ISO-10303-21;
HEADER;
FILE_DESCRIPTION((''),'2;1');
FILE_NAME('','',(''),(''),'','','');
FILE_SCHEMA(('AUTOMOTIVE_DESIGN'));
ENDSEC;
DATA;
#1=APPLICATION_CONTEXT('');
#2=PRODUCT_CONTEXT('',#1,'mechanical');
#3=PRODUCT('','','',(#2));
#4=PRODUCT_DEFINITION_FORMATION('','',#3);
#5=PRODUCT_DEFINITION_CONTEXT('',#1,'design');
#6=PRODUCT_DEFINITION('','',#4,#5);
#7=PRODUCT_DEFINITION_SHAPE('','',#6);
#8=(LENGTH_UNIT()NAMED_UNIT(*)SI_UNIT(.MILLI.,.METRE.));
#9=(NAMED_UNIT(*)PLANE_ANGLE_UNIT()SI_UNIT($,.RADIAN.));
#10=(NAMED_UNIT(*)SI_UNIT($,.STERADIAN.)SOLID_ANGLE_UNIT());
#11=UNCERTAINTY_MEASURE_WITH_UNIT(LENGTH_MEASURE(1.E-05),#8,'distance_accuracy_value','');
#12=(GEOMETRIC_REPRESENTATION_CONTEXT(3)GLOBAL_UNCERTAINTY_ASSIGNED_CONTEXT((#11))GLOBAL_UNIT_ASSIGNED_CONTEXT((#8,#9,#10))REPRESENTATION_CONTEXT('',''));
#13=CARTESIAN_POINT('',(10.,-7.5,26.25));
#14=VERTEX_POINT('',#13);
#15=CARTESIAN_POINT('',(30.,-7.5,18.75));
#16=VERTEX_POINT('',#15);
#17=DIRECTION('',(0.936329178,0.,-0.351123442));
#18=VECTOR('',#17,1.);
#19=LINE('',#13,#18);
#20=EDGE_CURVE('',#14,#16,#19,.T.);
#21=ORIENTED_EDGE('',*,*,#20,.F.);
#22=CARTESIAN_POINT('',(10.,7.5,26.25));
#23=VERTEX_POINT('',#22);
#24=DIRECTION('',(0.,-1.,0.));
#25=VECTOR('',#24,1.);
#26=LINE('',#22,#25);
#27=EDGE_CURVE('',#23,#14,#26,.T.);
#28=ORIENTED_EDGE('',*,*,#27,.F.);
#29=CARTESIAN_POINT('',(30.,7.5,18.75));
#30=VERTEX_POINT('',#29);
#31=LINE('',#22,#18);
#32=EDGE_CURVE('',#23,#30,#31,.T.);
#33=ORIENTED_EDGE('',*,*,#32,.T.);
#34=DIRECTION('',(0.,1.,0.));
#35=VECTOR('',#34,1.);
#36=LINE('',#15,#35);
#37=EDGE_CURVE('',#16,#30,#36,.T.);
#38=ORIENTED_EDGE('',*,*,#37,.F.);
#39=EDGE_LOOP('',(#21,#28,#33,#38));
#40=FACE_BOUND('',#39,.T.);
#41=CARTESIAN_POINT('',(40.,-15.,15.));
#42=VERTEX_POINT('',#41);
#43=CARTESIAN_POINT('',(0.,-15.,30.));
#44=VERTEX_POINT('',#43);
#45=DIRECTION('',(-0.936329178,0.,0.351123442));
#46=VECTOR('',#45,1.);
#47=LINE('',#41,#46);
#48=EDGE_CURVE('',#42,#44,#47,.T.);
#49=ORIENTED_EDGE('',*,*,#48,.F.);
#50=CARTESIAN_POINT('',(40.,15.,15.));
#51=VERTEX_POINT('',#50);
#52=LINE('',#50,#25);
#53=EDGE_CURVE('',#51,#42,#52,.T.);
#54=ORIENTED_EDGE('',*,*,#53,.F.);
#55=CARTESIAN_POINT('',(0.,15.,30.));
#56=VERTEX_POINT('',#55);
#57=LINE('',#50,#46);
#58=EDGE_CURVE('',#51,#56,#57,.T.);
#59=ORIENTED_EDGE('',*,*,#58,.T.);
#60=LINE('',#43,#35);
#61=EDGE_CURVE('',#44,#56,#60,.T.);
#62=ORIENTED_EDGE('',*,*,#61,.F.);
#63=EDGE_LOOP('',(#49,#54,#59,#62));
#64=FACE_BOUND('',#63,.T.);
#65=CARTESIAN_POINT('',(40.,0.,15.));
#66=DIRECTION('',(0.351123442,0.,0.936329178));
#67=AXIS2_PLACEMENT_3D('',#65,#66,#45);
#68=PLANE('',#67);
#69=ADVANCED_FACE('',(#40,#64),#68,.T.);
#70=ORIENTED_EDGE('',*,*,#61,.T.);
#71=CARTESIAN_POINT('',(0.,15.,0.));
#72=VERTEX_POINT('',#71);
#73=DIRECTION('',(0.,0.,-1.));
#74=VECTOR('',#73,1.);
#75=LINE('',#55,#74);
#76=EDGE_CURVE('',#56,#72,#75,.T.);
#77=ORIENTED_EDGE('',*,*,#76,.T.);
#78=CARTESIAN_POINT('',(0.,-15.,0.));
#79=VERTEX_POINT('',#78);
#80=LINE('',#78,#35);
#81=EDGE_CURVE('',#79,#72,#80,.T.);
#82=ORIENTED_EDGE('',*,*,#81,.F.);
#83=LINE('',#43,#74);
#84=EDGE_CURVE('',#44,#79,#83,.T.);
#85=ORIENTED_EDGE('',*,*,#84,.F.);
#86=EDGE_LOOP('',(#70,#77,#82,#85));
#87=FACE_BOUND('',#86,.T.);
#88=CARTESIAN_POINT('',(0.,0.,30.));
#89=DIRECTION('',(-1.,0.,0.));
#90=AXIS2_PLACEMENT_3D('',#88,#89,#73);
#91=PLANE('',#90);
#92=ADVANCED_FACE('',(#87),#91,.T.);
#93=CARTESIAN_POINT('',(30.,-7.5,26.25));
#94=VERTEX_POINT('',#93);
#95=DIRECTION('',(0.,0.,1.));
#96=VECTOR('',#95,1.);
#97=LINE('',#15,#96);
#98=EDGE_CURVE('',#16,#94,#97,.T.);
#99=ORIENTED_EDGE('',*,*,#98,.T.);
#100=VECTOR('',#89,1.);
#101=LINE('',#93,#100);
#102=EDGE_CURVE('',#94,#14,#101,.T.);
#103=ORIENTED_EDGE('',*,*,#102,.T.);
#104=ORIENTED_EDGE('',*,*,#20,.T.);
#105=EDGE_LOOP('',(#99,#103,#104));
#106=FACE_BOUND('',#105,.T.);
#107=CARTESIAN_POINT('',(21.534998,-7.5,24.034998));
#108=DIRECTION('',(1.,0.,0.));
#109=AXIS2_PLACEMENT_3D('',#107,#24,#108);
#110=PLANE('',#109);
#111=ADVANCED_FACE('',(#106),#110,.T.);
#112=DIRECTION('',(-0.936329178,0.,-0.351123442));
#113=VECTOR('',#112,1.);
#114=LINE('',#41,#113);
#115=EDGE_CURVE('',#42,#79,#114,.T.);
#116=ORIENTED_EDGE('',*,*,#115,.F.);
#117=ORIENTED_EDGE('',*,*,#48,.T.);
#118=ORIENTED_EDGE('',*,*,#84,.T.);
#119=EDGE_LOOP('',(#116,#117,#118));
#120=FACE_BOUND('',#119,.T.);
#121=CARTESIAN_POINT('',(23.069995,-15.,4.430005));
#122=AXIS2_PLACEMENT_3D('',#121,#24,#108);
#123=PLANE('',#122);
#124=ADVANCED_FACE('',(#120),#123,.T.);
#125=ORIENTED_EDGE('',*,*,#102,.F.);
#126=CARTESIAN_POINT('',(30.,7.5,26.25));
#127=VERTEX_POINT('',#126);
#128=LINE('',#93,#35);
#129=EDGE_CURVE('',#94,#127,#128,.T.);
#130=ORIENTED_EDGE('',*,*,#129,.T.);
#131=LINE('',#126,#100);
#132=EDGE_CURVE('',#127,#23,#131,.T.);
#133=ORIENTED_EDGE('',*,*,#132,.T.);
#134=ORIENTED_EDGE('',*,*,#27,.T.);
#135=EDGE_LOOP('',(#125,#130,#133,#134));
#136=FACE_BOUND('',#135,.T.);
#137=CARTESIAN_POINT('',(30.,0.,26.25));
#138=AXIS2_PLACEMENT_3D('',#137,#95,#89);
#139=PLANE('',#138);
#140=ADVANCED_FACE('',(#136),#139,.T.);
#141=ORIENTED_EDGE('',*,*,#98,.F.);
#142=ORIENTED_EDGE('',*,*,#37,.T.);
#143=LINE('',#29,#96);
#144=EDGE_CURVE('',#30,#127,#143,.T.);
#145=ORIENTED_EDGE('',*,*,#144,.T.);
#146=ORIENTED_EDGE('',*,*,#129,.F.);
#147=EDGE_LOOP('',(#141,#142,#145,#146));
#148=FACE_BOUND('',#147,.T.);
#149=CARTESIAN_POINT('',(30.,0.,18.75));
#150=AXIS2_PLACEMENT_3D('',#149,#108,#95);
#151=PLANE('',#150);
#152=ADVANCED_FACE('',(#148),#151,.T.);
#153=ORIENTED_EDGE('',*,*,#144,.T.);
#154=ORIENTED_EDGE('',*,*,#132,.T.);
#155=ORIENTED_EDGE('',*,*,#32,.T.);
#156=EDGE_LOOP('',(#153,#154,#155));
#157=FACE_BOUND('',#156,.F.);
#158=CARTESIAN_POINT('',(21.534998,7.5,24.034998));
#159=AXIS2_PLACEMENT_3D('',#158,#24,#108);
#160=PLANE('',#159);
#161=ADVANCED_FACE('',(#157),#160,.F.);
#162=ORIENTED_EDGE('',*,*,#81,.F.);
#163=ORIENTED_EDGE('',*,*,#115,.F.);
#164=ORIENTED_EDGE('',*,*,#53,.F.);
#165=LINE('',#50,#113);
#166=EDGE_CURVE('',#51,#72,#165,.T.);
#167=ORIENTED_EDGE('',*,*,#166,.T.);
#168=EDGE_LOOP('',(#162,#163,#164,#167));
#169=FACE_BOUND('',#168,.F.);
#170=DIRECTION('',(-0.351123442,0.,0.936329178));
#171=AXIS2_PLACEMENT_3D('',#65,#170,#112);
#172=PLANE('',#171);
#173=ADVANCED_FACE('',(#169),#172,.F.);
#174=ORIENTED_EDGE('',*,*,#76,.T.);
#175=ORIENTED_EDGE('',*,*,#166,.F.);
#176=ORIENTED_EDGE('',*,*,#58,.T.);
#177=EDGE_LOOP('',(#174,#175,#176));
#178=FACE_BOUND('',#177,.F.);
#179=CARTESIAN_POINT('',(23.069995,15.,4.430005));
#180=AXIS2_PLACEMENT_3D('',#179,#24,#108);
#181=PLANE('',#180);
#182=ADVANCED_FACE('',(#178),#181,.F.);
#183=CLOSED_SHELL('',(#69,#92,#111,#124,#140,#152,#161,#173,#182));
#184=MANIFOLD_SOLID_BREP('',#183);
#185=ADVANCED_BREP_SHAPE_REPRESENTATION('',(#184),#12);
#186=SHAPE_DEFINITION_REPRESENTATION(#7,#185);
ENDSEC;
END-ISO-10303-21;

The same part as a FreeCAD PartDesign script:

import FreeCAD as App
import Part
import Sketcher
from FreeCAD import Vector


def add_polygon(sketch, points):
    """Adds a closed chain of lines whose ends are joined by coincident constraints."""
    first, n = sketch.GeometryCount, len(points)
    for a, b in zip(points, points[1:] + points[:1]):
        sketch.addGeometry(Part.LineSegment(App.Vector(*a, 0), App.Vector(*b, 0)), False)
    for i in range(n):
        sketch.addConstraint(Sketcher.Constraint("Coincident", first + i, 2, first + (i + 1) % n, 1))

doc = App.newDocument("Part")
params = doc.addObject("Spreadsheet::Sheet", "Params")
for row, (alias, value) in enumerate([
    ("sketch1_width", "40 mm"),
    ("sketch1_height", "15 mm"),
    ("sketch1_height2", "30 mm"),
    ("pad1_length", "30 mm"),
    ("sketch2_width", "20 mm"),
    ("sketch2_height", "7.5 mm"),
    ("pad2_length", "15 mm"),
    ("sketch3_width", "40 mm"),
    ("sketch3_height", "15 mm"),
    ("pocket1_length", "30 mm"),
], start=1):
    params.set(f"A{row}", alias)
    params.set(f"B{row}", "=" + value)
    params.setAlias(f"B{row}", alias)

body = doc.addObject("PartDesign::Body", "Body")

# Sketch on XZ plane
sketch1 = doc.addObject("Sketcher::SketchObject", "Sketch")
body.addObject(sketch1)
sketch1.AttachmentSupport = (doc.XZ_Plane, [""])
sketch1.MapMode = "FlatFace"
add_polygon(sketch1, [(0, 0), (40, 0), (40, 15), (0, 30)])  # lines 0-3
sketch1.addConstraint(Sketcher.Constraint("Horizontal", 0))
sketch1.addConstraint(Sketcher.Constraint("Vertical", 1))
sketch1.addConstraint(Sketcher.Constraint("Vertical", 3))
sketch1.addConstraint(Sketcher.Constraint("Coincident", 3, 2, -1, 1))
sketch1.addConstraint(Sketcher.Constraint("DistanceX", 0, 1, 0, 2, 40.0))
sketch1.addConstraint(Sketcher.Constraint("DistanceY", 1, 1, 1, 2, 15.0))
sketch1.addConstraint(Sketcher.Constraint("DistanceY", 3, 2, 3, 1, 30.0))
sketch1.setExpression("Constraints[8]", "Params.sketch1_width")
sketch1.setExpression("Constraints[9]", "Params.sketch1_height")
sketch1.setExpression("Constraints[10]", "Params.sketch1_height2")
pad1 = doc.addObject("PartDesign::Pad", "Pad")
body.addObject(pad1)
pad1.Profile = sketch1
pad1.setExpression("Length", "Params.pad1_length")
pad1.Midplane = True

# Sketch on XZ plane
sketch2 = doc.addObject("Sketcher::SketchObject", "Sketch001")
body.addObject(sketch2)
sketch2.AttachmentSupport = (doc.XZ_Plane, [""])
sketch2.MapMode = "FlatFace"
add_polygon(sketch2, [(30, 26), (10, 26), (30, 19)])  # lines 0-2
sketch2.addConstraint(Sketcher.Constraint("Horizontal", 0))
sketch2.addConstraint(Sketcher.Constraint("Vertical", 2))
sketch2.addConstraint(Sketcher.Constraint("DistanceX", 0, 2, 0, 1, 20.0))
sketch2.addConstraint(Sketcher.Constraint("DistanceY", 2, 1, 2, 2, 7.5))
sketch2.addConstraint(Sketcher.Constraint("DistanceX", -1, 1, 0, 2, 10.0))
sketch2.addConstraint(Sketcher.Constraint("DistanceY", -1, 1, 0, 2, 26.25))
sketch2.setExpression("Constraints[5]", "Params.sketch2_width")
sketch2.setExpression("Constraints[6]", "Params.sketch2_height")
pad2 = doc.addObject("PartDesign::Pad", "Pad001")
body.addObject(pad2)
pad2.Profile = sketch2
pad2.setExpression("Length", "Params.pad2_length")
pad2.Midplane = True

# Sketch on XZ plane
sketch3 = doc.addObject("Sketcher::SketchObject", "Sketch002")
body.addObject(sketch3)
sketch3.AttachmentSupport = (doc.XZ_Plane, [""])
sketch3.MapMode = "FlatFace"
add_polygon(sketch3, [(40, 15), (0, 0), (40, 0)])  # lines 0-2
sketch3.addConstraint(Sketcher.Constraint("Horizontal", 1))
sketch3.addConstraint(Sketcher.Constraint("Vertical", 2))
sketch3.addConstraint(Sketcher.Constraint("Coincident", 0, 2, -1, 1))
sketch3.addConstraint(Sketcher.Constraint("DistanceX", 1, 1, 1, 2, 40.0))
sketch3.addConstraint(Sketcher.Constraint("DistanceY", 2, 1, 2, 2, 15.0))
sketch3.setExpression("Constraints[6]", "Params.sketch3_width")
sketch3.setExpression("Constraints[7]", "Params.sketch3_height")
pocket1 = doc.addObject("PartDesign::Pocket", "Pocket")
body.addObject(pocket1)
pocket1.Profile = sketch3
pocket1.setExpression("Length", "Params.pocket1_length")
pocket1.Midplane = True

doc.recompute()
